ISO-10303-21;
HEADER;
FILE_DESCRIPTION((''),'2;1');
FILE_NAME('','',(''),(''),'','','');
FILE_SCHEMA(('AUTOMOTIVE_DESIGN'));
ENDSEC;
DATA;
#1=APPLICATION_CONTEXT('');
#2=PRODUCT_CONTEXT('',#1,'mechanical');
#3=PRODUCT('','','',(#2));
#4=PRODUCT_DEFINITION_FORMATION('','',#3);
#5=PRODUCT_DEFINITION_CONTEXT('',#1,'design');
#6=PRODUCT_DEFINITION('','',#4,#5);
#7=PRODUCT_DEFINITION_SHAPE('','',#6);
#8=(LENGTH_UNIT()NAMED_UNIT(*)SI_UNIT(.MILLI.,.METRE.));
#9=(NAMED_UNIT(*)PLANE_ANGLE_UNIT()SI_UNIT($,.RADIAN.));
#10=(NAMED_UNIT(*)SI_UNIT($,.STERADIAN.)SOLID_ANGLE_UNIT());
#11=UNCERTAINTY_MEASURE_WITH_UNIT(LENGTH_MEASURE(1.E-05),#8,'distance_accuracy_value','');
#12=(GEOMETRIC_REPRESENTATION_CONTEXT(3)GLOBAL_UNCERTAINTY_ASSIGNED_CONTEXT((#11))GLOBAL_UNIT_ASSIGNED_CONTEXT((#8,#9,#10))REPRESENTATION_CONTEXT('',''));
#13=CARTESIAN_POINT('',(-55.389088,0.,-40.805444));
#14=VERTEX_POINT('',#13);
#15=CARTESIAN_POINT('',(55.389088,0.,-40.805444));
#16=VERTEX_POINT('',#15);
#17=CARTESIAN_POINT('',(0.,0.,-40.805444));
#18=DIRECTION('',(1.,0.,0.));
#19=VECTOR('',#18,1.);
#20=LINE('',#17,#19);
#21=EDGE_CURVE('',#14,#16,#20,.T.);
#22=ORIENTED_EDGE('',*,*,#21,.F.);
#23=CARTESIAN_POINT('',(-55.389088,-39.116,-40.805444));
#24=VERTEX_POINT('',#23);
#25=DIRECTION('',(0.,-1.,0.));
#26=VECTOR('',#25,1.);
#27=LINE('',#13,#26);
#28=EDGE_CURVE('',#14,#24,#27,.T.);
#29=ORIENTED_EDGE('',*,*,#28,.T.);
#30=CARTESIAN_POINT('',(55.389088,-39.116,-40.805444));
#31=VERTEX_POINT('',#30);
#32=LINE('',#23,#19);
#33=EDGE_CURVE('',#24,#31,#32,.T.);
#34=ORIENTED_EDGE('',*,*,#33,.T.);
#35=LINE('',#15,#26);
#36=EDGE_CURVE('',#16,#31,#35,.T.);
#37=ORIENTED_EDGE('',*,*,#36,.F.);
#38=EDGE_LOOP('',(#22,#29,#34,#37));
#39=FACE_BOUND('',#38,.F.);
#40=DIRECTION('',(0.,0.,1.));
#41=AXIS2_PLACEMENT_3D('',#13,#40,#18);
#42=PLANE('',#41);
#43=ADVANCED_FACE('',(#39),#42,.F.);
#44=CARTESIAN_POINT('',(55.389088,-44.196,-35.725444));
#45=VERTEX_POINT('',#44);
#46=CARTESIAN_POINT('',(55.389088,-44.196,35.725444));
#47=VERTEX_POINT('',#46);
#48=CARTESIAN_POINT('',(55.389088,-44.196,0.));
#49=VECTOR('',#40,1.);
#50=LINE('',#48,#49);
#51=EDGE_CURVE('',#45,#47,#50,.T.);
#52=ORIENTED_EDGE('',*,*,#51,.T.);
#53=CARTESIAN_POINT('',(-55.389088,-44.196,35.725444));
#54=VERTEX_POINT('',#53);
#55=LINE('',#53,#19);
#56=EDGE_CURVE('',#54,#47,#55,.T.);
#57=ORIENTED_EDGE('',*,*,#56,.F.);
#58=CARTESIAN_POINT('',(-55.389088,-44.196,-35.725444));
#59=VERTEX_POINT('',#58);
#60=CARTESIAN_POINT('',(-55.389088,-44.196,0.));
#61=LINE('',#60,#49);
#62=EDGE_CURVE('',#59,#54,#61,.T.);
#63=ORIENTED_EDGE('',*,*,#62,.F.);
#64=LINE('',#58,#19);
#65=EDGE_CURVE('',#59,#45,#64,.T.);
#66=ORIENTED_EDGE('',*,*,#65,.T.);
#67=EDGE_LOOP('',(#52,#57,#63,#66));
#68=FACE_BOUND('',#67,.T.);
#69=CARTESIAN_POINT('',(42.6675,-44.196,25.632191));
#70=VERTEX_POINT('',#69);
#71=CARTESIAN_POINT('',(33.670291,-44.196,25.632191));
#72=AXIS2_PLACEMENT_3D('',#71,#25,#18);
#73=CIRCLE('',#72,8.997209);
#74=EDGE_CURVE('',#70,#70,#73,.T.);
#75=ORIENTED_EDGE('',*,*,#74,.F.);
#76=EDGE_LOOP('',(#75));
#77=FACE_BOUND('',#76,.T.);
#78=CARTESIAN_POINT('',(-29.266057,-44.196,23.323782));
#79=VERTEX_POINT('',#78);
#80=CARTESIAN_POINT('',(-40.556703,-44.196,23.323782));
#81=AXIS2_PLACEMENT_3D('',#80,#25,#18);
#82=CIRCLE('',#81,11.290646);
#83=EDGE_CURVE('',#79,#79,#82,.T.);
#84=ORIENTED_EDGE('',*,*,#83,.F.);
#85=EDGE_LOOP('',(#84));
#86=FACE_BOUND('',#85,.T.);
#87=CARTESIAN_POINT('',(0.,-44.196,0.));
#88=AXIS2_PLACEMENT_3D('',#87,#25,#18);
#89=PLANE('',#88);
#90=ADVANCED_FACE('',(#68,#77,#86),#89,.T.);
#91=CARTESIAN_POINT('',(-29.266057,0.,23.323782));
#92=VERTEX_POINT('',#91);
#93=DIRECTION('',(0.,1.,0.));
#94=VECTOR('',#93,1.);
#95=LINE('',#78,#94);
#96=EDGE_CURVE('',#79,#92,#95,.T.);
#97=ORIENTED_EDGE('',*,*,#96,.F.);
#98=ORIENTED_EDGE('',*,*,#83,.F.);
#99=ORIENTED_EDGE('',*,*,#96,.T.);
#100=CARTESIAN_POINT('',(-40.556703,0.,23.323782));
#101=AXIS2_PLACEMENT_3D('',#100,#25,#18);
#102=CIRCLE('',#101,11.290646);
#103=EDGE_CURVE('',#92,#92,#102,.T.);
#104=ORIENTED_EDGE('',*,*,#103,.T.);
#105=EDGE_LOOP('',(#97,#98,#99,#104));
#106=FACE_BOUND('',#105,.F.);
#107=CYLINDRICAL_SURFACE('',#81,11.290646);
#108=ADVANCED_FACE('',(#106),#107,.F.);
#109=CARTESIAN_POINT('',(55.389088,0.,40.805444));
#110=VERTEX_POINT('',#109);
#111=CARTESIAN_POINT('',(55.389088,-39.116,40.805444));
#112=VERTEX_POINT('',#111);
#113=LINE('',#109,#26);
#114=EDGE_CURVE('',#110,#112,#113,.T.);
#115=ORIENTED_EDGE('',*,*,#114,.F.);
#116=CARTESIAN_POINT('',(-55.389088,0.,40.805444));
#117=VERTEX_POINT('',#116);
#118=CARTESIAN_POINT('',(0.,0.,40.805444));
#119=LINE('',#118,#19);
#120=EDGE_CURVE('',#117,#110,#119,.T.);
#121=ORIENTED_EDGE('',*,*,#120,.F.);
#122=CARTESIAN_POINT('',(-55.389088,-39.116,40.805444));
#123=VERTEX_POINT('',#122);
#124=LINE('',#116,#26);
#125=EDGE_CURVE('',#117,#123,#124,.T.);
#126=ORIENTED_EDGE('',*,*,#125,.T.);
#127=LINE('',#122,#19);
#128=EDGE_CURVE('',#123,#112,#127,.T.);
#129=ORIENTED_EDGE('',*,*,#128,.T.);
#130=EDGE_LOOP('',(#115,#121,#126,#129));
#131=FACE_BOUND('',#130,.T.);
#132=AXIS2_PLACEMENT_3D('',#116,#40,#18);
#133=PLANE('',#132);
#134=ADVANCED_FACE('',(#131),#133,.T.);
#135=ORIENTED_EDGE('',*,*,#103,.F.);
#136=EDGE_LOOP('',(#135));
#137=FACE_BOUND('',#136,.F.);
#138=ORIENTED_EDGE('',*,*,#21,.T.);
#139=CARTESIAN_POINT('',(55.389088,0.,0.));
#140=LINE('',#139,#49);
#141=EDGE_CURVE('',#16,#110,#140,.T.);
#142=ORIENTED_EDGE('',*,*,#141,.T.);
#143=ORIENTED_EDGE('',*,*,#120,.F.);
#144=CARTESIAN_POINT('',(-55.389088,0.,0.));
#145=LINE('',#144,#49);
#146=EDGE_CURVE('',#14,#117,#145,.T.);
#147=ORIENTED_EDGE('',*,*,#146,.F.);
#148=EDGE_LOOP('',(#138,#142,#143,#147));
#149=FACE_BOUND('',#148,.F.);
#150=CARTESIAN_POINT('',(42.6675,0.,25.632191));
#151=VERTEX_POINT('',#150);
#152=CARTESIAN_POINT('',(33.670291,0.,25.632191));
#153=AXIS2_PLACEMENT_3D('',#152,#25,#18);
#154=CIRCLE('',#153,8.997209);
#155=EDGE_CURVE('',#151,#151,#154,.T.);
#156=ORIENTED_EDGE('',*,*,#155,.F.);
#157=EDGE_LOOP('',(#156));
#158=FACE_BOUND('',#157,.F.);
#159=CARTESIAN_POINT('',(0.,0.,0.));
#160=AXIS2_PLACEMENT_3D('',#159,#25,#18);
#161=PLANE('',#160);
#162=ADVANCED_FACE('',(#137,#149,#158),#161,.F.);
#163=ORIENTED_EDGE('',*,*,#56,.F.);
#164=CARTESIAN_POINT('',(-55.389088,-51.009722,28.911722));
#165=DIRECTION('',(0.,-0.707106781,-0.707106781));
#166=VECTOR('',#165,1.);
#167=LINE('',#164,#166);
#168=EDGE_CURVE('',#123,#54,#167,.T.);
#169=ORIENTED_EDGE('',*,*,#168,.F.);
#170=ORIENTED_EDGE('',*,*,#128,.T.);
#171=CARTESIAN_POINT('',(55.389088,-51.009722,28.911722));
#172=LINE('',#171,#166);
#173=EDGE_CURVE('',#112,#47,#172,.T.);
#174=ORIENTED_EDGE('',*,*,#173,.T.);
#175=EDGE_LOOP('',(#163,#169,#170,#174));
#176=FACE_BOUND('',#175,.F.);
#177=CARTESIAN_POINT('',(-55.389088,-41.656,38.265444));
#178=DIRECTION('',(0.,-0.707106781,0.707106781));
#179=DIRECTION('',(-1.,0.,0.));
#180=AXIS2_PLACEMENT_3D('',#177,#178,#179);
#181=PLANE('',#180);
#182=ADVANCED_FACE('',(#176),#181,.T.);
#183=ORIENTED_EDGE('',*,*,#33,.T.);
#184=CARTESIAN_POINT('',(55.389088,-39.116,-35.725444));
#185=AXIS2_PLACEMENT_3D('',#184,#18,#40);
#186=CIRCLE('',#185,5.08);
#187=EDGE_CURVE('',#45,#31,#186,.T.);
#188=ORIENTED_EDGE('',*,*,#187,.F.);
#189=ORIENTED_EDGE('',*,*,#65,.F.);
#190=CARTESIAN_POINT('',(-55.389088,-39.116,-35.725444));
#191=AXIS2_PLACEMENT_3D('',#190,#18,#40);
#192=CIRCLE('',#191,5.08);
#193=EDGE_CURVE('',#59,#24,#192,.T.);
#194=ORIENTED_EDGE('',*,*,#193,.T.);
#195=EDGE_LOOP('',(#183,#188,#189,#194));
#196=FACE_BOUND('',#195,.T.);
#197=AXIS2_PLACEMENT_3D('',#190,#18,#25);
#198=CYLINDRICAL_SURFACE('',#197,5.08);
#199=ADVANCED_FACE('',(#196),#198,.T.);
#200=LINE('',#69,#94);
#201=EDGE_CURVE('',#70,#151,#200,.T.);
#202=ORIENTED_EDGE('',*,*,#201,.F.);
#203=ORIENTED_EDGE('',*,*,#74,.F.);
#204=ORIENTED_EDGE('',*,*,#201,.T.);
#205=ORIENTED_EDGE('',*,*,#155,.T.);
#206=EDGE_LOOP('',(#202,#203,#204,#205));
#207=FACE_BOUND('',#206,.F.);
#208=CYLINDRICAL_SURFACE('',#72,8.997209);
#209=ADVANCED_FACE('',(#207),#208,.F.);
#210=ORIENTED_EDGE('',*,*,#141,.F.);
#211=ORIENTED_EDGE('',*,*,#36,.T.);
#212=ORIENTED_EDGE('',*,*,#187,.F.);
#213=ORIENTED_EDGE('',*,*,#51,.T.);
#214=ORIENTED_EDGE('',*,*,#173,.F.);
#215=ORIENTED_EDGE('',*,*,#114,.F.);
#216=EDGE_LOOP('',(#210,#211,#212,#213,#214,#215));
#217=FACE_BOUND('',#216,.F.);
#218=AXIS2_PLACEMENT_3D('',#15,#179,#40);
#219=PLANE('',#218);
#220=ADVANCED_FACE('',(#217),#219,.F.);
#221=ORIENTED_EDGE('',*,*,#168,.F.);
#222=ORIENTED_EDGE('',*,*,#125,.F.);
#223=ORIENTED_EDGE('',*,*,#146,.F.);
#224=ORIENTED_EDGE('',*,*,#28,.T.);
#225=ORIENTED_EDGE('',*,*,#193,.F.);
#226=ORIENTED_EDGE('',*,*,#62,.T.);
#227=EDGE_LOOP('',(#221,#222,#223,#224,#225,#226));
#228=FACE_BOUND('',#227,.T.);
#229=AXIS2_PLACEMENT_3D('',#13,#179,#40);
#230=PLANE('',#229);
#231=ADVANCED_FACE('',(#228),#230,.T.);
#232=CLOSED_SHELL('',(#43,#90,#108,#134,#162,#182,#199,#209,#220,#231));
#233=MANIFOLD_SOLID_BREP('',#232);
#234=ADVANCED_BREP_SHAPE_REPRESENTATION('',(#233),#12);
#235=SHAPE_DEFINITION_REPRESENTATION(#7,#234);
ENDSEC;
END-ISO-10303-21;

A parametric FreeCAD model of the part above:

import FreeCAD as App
import Part
import Sketcher

V = App.Vector
Q = App.Units.Quantity


def edges_at(feature, points):
    """Names of the edges that pass closest to the given points."""
    edges = feature.Shape.Edges
    near = lambda p: min(range(len(edges)), key=lambda i: edges[i].distToShape(Part.Vertex(*p))[0])
    return sorted({f"Edge{near(p) + 1}" for p in points})

doc = App.newDocument("Part")
body = doc.addObject("PartDesign::Body", "Body")

# Sketch on XZ plane
sketch1 = body.newObject("Sketcher::SketchObject", "Sketch")
sketch1.AttachmentSupport = (doc.getObject("XZ_Plane"), [""])
sketch1.MapMode = "FlatFace"
sketch1.addGeometry(Part.LineSegment(V(-55.389088, 40.805444, 0), V(-55.389088, -40.805444, 0)), False)
sketch1.addGeometry(Part.LineSegment(V(-55.389088, -40.805444, 0), V(55.389088, -40.805444, 0)), False)
sketch1.addGeometry(Part.LineSegment(V(55.389088, -40.805444, 0), V(55.389088, 40.805444, 0)), False)
sketch1.addGeometry(Part.LineSegment(V(55.389088, 40.805444, 0), V(-55.389088, 40.805444, 0)), False)
sketch1.addConstraint(Sketcher.Constraint("Coincident", 0, 2, 1, 1))
sketch1.addConstraint(Sketcher.Constraint("Coincident", 1, 2, 2, 1))
sketch1.addConstraint(Sketcher.Constraint("Coincident", 2, 2, 3, 1))
sketch1.addConstraint(Sketcher.Constraint("Coincident", 3, 2, 0, 1))
sketch1.addConstraint(Sketcher.Constraint("Vertical", 0))
sketch1.addConstraint(Sketcher.Constraint("Horizontal", 1))
sketch1.addConstraint(Sketcher.Constraint("Vertical", 2))
sketch1.addConstraint(Sketcher.Constraint("Horizontal", 3))
sketch1.addConstraint(Sketcher.Constraint("Symmetric", 0, 2, 2, 2, -1, 1))
sketch1.addConstraint(Sketcher.Constraint("DistanceY", 0, 2, 0, 1, Q("81.610888 mm")))
sketch1.addConstraint(Sketcher.Constraint("DistanceX", 1, 1, 1, 2, Q("110.778176 mm")))
pad1 = body.newObject("PartDesign::Pad", "Pad")
pad1.Profile = sketch1
pad1.Length = Q("1.74 in")

# Sketch on XZ plane
sketch2 = body.newObject("Sketcher::SketchObject", "Sketch001")
sketch2.AttachmentSupport = (doc.getObject("XZ_Plane"), [""])
sketch2.MapMode = "FlatFace"
sketch2.AttachmentOffset = App.Placement(V(0, 0, 1.74 * 25.4), App.Rotation())
sketch2.addGeometry(Part.Circle(V(-40.556703, 23.323782, 0), V(0, 0, 1), 11.290646), False)
sketch2.addGeometry(Part.Circle(V(33.670291, 25.632191, 0), V(0, 0, 1), 8.997209), False)
sketch2.addConstraint(Sketcher.Constraint("Diameter", 0, Q("22.581292 mm")))
sketch2.addConstraint(Sketcher.Constraint("Diameter", 1, Q("17.994418 mm")))
sketch2.addConstraint(Sketcher.Constraint("DistanceX", -1, 1, 1, 3, Q("33.670291 mm")))
sketch2.addConstraint(Sketcher.Constraint("DistanceY", -1, 1, 1, 3, Q("25.632191 mm")))
sketch2.addConstraint(Sketcher.Constraint("DistanceY", 0, 3, 1, 3, Q("2.308409 mm")))
sketch2.addConstraint(Sketcher.Constraint("DistanceX", 0, 3, -1, 1, Q("40.556703 mm")))
pocket1 = body.newObject("PartDesign::Pocket", "Pocket")
pocket1.Profile = sketch2
pocket1.Type = "ThroughAll"
doc.recompute()

chamfer = body.newObject("PartDesign::Chamfer", "Chamfer")
chamfer.Base = (pocket1, edges_at(pocket1, [(0, -44.196, 40.805)]))
chamfer.Size = Q("0.2 in")
doc.recompute()

fillet = body.newObject("PartDesign::Fillet", "Fillet")
fillet.Base = (chamfer, edges_at(chamfer, [(0, -44.196, -40.805)]))
fillet.Radius = Q("0.2 in")

doc.recompute()
